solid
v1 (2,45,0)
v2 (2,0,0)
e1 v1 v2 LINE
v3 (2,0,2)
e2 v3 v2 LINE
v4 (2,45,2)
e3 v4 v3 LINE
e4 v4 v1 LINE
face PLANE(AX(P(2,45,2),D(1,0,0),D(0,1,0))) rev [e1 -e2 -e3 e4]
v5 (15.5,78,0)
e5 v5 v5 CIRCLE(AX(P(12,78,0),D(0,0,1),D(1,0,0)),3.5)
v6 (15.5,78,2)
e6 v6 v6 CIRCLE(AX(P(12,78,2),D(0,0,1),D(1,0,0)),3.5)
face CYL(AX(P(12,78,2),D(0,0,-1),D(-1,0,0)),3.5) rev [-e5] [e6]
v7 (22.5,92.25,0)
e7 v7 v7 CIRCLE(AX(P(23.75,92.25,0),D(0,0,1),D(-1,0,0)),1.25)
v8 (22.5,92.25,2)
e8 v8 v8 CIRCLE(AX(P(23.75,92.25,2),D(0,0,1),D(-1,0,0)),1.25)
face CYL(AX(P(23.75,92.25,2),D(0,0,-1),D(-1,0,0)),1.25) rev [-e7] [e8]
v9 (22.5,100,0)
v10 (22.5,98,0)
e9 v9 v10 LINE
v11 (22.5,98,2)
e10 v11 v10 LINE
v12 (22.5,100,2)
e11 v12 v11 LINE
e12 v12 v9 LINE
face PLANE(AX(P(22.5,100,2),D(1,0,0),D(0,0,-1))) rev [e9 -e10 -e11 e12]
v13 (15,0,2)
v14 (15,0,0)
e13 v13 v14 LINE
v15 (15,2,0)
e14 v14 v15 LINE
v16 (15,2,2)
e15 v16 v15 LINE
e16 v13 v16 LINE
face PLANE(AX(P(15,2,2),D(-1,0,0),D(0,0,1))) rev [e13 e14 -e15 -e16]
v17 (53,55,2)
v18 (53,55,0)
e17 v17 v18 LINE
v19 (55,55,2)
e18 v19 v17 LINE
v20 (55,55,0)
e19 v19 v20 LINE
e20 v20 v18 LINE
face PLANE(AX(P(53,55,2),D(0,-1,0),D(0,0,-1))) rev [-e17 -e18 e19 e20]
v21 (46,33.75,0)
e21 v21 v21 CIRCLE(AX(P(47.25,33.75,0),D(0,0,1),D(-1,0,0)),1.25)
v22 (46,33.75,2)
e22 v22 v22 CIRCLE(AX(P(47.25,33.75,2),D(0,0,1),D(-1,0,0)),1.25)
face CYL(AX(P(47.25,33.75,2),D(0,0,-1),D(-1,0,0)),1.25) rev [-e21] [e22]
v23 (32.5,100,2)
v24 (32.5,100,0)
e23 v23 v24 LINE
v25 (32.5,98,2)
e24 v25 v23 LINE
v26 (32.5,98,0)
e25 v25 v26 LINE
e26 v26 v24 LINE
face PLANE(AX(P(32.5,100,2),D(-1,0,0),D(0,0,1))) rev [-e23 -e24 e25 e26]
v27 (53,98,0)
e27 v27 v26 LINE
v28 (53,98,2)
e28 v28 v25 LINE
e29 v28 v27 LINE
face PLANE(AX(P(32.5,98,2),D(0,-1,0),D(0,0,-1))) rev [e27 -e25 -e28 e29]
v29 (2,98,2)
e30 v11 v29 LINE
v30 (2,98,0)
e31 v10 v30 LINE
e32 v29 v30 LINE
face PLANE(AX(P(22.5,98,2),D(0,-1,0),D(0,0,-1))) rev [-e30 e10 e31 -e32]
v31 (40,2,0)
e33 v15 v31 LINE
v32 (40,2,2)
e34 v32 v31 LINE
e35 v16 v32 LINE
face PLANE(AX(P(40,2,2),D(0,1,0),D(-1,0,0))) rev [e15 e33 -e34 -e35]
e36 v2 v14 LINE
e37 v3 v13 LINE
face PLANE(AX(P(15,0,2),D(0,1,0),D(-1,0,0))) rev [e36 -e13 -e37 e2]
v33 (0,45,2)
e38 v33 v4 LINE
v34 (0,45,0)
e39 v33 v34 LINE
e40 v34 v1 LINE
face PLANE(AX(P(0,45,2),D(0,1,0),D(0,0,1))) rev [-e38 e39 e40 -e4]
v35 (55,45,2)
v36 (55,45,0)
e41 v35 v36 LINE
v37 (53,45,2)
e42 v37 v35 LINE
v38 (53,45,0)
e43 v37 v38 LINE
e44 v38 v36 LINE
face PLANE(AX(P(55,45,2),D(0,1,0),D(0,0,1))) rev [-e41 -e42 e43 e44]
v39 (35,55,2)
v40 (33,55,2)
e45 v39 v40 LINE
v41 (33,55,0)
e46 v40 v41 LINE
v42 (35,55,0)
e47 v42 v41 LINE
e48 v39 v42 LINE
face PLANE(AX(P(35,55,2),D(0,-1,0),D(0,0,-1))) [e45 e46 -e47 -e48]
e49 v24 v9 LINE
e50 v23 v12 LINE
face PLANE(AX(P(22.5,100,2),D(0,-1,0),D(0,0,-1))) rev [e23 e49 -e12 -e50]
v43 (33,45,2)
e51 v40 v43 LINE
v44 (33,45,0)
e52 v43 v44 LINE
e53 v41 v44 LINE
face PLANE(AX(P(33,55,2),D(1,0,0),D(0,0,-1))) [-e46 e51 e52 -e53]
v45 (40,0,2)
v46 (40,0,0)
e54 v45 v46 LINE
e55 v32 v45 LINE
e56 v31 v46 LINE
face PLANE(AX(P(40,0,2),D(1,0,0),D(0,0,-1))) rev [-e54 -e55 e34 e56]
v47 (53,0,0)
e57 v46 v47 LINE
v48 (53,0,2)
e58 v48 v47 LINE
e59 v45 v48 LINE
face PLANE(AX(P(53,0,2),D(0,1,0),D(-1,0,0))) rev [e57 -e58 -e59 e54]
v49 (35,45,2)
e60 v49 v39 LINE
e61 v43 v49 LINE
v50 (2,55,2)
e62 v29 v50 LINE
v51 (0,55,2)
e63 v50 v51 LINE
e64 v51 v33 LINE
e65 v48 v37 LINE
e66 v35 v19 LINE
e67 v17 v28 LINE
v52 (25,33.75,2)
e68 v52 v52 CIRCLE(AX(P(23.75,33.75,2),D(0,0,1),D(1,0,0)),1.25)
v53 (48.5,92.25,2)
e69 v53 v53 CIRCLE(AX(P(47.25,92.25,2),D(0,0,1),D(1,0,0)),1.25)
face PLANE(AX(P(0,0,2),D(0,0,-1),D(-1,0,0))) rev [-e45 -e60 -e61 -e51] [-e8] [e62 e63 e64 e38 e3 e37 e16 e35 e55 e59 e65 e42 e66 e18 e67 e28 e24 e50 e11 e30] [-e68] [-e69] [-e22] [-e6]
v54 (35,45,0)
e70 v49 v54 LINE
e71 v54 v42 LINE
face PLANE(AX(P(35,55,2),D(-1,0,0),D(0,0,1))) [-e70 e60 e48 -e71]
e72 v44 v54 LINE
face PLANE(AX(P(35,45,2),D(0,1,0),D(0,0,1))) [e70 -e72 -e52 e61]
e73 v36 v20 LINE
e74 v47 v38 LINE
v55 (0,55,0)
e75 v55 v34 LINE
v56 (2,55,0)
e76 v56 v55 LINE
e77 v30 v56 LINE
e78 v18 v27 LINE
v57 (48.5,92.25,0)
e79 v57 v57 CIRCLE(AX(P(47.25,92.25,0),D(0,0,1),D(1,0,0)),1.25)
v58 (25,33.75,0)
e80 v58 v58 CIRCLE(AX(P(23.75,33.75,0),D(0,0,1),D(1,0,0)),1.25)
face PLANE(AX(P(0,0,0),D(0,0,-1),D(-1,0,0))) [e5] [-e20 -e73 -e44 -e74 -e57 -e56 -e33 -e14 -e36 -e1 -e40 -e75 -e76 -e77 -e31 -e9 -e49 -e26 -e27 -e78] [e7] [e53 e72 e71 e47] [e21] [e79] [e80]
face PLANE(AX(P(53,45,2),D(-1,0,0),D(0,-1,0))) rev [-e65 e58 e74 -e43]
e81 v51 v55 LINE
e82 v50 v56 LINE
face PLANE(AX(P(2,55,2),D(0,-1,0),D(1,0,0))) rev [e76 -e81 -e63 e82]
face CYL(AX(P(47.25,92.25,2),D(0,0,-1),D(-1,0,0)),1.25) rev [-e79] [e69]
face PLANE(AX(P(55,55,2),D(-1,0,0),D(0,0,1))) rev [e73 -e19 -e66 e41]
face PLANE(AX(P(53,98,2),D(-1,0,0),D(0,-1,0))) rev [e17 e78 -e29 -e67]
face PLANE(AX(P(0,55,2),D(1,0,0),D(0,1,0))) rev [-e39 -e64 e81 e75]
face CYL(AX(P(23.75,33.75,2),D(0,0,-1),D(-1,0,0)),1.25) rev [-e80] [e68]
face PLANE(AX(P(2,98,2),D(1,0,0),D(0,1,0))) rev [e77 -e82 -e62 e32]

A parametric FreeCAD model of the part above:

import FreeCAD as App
import Part
import Sketcher


def add_polygon(sketch, points):
    """Adds a closed chain of lines whose ends are joined by coincident constraints."""
    first, n = sketch.GeometryCount, len(points)
    for a, b in zip(points, points[1:] + points[:1]):
        sketch.addGeometry(Part.LineSegment(App.Vector(*a, 0), App.Vector(*b, 0)), False)
    for i in range(n):
        sketch.addConstraint(Sketcher.Constraint("Coincident", first + i, 2, first + (i + 1) % n, 1))

doc = App.newDocument("Part")
body = doc.addObject("PartDesign::Body", "Body")

sketch1 = doc.addObject("Sketcher::SketchObject", "Sketch")
body.addObject(sketch1)
sketch1.AttachmentSupport = (doc.XY_Plane, [""])
sketch1.MapMode = "FlatFace"
add_polygon(sketch1, [(22.5, 100), (22.5, 98), (2, 98), (2, 55), (0, 55), (0, 45), (2, 45), (2, 0), (15, 0), (15, 2), (40, 2), (40, 0), (53, 0), (53, 45), (55, 45), (55, 55), (53, 55), (53, 98), (32.5, 98), (32.5, 100)])
sketch1.addGeometry(Part.Circle(App.Vector(23.8, 33.8, 0), App.Vector(0, 0, 1), 1.2), False)
sketch1.addGeometry(Part.Circle(App.Vector(47.2, 33.8, 0), App.Vector(0, 0, 1), 1.2), False)
add_polygon(sketch1, [(35, 45), (33, 45), (33, 55), (35, 55)])
sketch1.addGeometry(Part.Circle(App.Vector(12, 78, 0), App.Vector(0, 0, 1), 3.5), False)
sketch1.addGeometry(Part.Circle(App.Vector(23.8, 92.2, 0), App.Vector(0, 0, 1), 1.2), False)
sketch1.addGeometry(Part.Circle(App.Vector(47.2, 92.2, 0), App.Vector(0, 0, 1), 1.2), False)
sketch1.addConstraint([
    Sketcher.Constraint("Vertical", 0),
    Sketcher.Constraint("Horizontal", 1),
    Sketcher.Constraint("Vertical", 2),
    Sketcher.Constraint("Horizontal", 3),
    Sketcher.Constraint("Vertical", 4),
    Sketcher.Constraint("Horizontal", 5),
    Sketcher.Constraint("Vertical", 6),
    Sketcher.Constraint("Horizontal", 7),
    Sketcher.Constraint("Vertical", 8),
    Sketcher.Constraint("Horizontal", 9),
    Sketcher.Constraint("Vertical", 10),
    Sketcher.Constraint("Horizontal", 11),
    Sketcher.Constraint("Vertical", 12),
    Sketcher.Constraint("Horizontal", 13),
    Sketcher.Constraint("Vertical", 14),
    Sketcher.Constraint("Horizontal", 15),
    Sketcher.Constraint("Vertical", 16),
    Sketcher.Constraint("Horizontal", 17),
    Sketcher.Constraint("Vertical", 18),
    Sketcher.Constraint("Horizontal", 19),
    Sketcher.Constraint("Horizontal", 22),
    Sketcher.Constraint("Vertical", 23),
    Sketcher.Constraint("Horizontal", 24),
    Sketcher.Constraint("Vertical", 25),
    Sketcher.Constraint("Equal", 20, 21),
    Sketcher.Constraint("Equal", 21, 27),
    Sketcher.Constraint("Equal", 27, 28),
    Sketcher.Constraint("PointOnObject", 3, 2, -2),
    Sketcher.Constraint("PointOnObject", 6, 2, -1),
    Sketcher.Constraint("PointOnObject", 10, 2, -1),
    Sketcher.Constraint("Horizontal", 20, 3, 21, 3),
    Sketcher.Constraint("Horizontal", 27, 3, 28, 3),
    Sketcher.Constraint("Horizontal", 5, 2, 12, 2),
    Sketcher.Constraint("Horizontal", 3, 2, 14, 2),
    Sketcher.Constraint("Horizontal", 1, 2, 16, 2),
    Sketcher.Constraint("Horizontal", 13, 2, 22, 2),
    Sketcher.Constraint("Horizontal", 15, 2, 23, 2),
    Sketcher.Constraint("Vertical", 20, 3, 27, 3),
    Sketcher.Constraint("Vertical", 21, 3, 28, 3),
    Sketcher.Constraint("Vertical", 2, 2, 5, 2),
    Sketcher.Constraint("Vertical", 12, 2, 15, 2),
    Sketcher.Constraint("Equal", 7, 11),
    Sketcher.Constraint("Equal", 5, 13),
    Sketcher.Constraint("Equal", 1, 17),
    Sketcher.Constraint("Equal", 15, 22),
    Sketcher.Constraint("Equal", 24, 0),
    Sketcher.Constraint("Equal", 19, 4),
    Sketcher.Constraint("Equal", 0, 8),
    Sketcher.Constraint("Diameter", 26, 7.0),
    Sketcher.Constraint("Diameter", 20, 2.5),
    Sketcher.Constraint("DistanceX", 3, 2, 3, 1, 2.0),
    Sketcher.Constraint("DistanceX", 7, 1, 7, 2, 13.0),
    Sketcher.Constraint("DistanceX", 9, 1, 9, 2, 25.0),
    Sketcher.Constraint("DistanceX", 19, 2, 19, 1, 10.0),
    Sketcher.Constraint("DistanceY", 2, 2, 2, 1, 43.0),
    Sketcher.Constraint("DistanceY", 6, 2, 6, 1, 45.0),
    Sketcher.Constraint("DistanceX", -1, 1, 26, 3, 12.0),
    Sketcher.Constraint("DistanceY", -1, 1, 26, 3, 78.0),
    Sketcher.Constraint("DistanceX", -1, 1, 22, 2, 33.0),
    Sketcher.Constraint("DistanceX", 20, 3, 21, 3, 23.5),
    Sketcher.Constraint("DistanceY", 20, 3, 27, 3, 58.5),
    Sketcher.Constraint("DistanceX", -1, 1, 20, 3, 23.75),
    Sketcher.Constraint("DistanceY", -1, 1, 20, 3, 33.75),
])
pad1 = doc.addObject("PartDesign::Pad", "Pad")
body.addObject(pad1)
pad1.Profile = sketch1
pad1.Length = 2

doc.recompute()
